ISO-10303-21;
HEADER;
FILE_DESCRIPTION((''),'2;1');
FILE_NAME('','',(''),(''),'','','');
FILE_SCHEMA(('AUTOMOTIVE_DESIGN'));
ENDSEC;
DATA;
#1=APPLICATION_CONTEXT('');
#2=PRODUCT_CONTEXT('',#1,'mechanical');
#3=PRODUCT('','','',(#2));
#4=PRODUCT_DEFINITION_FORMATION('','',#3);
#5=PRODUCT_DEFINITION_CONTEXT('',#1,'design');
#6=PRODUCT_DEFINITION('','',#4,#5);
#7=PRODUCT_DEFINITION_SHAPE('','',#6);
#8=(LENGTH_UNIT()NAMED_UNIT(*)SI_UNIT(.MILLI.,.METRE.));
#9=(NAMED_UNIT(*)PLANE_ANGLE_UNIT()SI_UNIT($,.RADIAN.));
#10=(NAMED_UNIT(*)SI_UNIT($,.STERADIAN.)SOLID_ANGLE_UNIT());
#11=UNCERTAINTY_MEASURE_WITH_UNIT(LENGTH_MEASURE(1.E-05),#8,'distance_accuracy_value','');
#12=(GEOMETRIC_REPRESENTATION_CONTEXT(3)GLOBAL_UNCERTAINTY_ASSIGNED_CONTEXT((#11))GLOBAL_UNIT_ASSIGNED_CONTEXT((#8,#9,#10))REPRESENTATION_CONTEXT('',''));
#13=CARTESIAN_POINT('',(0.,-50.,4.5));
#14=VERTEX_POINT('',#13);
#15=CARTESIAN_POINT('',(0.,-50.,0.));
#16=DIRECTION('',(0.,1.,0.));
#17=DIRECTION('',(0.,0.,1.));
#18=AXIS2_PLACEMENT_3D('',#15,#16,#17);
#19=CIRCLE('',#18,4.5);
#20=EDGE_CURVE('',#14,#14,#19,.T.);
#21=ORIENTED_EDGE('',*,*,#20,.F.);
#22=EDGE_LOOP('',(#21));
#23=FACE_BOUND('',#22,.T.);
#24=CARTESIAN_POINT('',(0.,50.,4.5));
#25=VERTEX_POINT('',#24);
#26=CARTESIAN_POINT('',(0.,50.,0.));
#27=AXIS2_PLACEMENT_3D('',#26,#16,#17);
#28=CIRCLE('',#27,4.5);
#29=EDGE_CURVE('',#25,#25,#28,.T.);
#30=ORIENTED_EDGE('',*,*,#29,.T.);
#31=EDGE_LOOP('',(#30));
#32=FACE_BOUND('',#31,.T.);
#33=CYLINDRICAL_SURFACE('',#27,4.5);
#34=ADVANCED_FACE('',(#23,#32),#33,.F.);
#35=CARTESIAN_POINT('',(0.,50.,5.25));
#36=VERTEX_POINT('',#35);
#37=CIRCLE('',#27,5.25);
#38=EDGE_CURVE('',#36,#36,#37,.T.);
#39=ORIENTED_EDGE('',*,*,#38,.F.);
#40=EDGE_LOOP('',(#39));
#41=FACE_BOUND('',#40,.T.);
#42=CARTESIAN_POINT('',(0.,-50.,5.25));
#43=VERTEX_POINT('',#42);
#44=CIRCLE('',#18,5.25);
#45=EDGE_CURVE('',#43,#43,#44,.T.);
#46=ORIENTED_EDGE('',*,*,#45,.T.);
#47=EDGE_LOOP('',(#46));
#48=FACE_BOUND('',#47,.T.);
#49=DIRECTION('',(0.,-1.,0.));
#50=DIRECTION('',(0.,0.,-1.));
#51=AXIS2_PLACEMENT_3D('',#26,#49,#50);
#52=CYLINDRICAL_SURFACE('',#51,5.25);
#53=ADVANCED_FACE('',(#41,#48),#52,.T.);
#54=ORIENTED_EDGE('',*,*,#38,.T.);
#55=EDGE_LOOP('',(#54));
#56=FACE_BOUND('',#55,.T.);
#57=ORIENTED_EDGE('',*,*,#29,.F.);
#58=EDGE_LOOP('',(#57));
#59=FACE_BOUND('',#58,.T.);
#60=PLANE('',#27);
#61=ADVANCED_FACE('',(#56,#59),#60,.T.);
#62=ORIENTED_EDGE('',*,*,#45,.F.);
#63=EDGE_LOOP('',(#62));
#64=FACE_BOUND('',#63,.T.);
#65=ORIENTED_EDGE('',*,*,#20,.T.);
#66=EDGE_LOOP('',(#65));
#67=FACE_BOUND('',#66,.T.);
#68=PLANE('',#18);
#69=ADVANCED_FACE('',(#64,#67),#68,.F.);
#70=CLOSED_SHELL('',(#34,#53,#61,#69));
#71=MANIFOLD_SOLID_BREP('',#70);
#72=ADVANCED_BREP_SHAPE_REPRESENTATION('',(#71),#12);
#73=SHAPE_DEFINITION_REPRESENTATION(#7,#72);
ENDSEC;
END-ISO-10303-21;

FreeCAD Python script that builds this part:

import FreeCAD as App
import Part
import Sketcher

doc = App.newDocument("Part")
body = doc.addObject("PartDesign::Body", "Body")

# Sketch on XZ plane
sketch1 = doc.addObject("Sketcher::SketchObject", "Sketch")
body.addObject(sketch1)
sketch1.AttachmentSupport = (doc.XZ_Plane, [""])
sketch1.MapMode = "FlatFace"
sketch1.addGeometry(Part.Circle(App.Vector(0, 0, 0), App.Vector(0, 0, 1), 5.25), False)
sketch1.addConstraint(Sketcher.Constraint("Coincident", 0, 3, -1, 1))
sketch1.addConstraint(Sketcher.Constraint("Diameter", 0, 10.5))
pad1 = doc.addObject("PartDesign::Pad", "Pad")
body.addObject(pad1)
pad1.Profile = sketch1
pad1.Length = 100
pad1.Midplane = True

# Sketch on XZ plane
sketch2 = doc.addObject("Sketcher::SketchObject", "Sketch001")
body.addObject(sketch2)
sketch2.AttachmentSupport = (doc.XZ_Plane, [""])
sketch2.MapMode = "FlatFace"
sketch2.AttachmentOffset = App.Placement(App.Vector(0, 0, -50), App.Rotation())
sketch2.addGeometry(Part.Circle(App.Vector(0, 0, 0), App.Vector(0, 0, 1), 4.5), False)
sketch2.addConstraint(Sketcher.Constraint("Coincident", 0, 3, -1, 1))
sketch2.addConstraint(Sketcher.Constraint("Diameter", 0, 9.0))
doc.recompute()
hole = doc.addObject("PartDesign::Hole", "Hole")
body.addObject(hole)
hole.Profile = sketch2
hole.ThreadType = "None"
hole.Diameter = 9
hole.DepthType = "ThroughAll"
hole.Reversed = True

doc.recompute()
